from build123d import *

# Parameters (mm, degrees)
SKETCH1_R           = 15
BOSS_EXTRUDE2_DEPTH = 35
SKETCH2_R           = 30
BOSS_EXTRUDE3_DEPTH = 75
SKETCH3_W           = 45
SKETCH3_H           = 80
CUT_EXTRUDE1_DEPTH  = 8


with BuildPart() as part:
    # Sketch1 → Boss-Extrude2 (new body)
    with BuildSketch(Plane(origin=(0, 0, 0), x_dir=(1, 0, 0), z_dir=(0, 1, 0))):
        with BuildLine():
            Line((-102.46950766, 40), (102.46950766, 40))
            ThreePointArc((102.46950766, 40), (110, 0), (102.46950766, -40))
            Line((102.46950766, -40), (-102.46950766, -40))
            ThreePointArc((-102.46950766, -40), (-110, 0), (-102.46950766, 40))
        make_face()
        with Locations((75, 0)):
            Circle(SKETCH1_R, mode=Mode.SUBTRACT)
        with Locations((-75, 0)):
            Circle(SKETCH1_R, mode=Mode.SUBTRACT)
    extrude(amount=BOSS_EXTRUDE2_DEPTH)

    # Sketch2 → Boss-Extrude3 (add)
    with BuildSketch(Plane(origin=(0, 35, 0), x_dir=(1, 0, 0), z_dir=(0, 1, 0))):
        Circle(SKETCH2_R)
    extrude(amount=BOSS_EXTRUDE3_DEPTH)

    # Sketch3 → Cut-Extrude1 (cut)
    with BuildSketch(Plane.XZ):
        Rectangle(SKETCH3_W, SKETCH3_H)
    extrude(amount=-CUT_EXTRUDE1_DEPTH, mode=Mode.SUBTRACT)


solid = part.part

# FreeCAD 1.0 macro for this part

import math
import FreeCAD as App
import Part
import Sketcher
from FreeCAD import Vector

doc = App.newDocument("Part")
body = doc.addObject("PartDesign::Body", "Body")

sketch1 = body.newObject("Sketcher::SketchObject", "Sketch")
sketch1.AttachmentSupport = (doc.getObject("XZ_Plane"), [""])
sketch1.MapMode = "FlatFace"
sketch1.addGeometry([
    Part.LineSegment(Vector(102, -40, 0), Vector(-102, -40, 0)),
    Part.ArcOfCircle(Part.Circle(Vector(0, 0, 0), Vector(0, 0, 1), 110), math.radians(159), math.radians(201)),
    Part.LineSegment(Vector(-102, 40, 0), Vector(102, 40, 0)),
    Part.ArcOfCircle(Part.Circle(Vector(0, 0, 0), Vector(0, 0, 1), 110), math.radians(-21), math.radians(21)),
    Part.Circle(Vector(75, 0, 0), Vector(0, 0, 1), 15),
    Part.Circle(Vector(-75, 0, 0), Vector(0, 0, 1), 15),
], False)
sketch1.addConstraint([
    Sketcher.Constraint("Coincident", 0, 2, 1, 2),
    Sketcher.Constraint("Coincident", 1, 1, 2, 1),
    Sketcher.Constraint("Coincident", 2, 2, 3, 2),
    Sketcher.Constraint("Coincident", 3, 1, 0, 1),
    Sketcher.Constraint("Horizontal", 0),
    Sketcher.Constraint("Horizontal", 2),
    Sketcher.Constraint("Coincident", 1, 3, -1, 1),
    Sketcher.Constraint("Coincident", 3, 3, -1, 1),
    Sketcher.Constraint("Equal", 1, 3),
    Sketcher.Constraint("Equal", 4, 5),
    Sketcher.Constraint("Symmetric", 4, 3, 5, 3, -1, 1),
    Sketcher.Constraint("PointOnObject", 4, 3, -1),
    Sketcher.Constraint("Vertical", 0, 2, 1, 1),
    Sketcher.Constraint("Diameter", 4, 30.0),
    Sketcher.Constraint("Radius", 1, 110.0),
    Sketcher.Constraint("DistanceX", -1, 1, 4, 3, 75.0),
    Sketcher.Constraint("DistanceY", 0, 2, -1, 1, 40.0),
])
pad1 = body.newObject("PartDesign::Pad", "Pad")
pad1.Profile = sketch1
pad1.Length = 35
pad1.Reversed = True

sketch2 = body.newObject("Sketcher::SketchObject", "Sketch001")
sketch2.AttachmentSupport = (doc.getObject("XZ_Plane"), [""])
sketch2.MapMode = "FlatFace"
sketch2.AttachmentOffset = App.Placement(Vector(0, 0, -35), App.Rotation())
sketch2.addGeometry(Part.Circle(Vector(0, 0, 0), Vector(0, 0, 1), 30), False)
sketch2.addConstraint([
    Sketcher.Constraint("Coincident", 0, 3, -1, 1),
    Sketcher.Constraint("Diameter", 0, 60.0),
])
pad2 = body.newObject("PartDesign::Pad", "Pad001")
pad2.Profile = sketch2
pad2.Length = 75
pad2.Reversed = True

sketch3 = body.newObject("Sketcher::SketchObject", "Sketch002")
sketch3.AttachmentSupport = (doc.getObject("XZ_Plane"), [""])
sketch3.MapMode = "FlatFace"
sketch3.addGeometry([
    Part.LineSegment(Vector(-22, 40, 0), Vector(-22, -40, 0)),
    Part.LineSegment(Vector(-22, -40, 0), Vector(22, -40, 0)),
    Part.LineSegment(Vector(22, -40, 0), Vector(22, 40, 0)),
    Part.LineSegment(Vector(22, 40, 0), Vector(-22, 40, 0)),
], False)
sketch3.addConstraint([
    Sketcher.Constraint("Coincident", 0, 2, 1, 1),
    Sketcher.Constraint("Coincident", 1, 2, 2, 1),
    Sketcher.Constraint("Coincident", 2, 2, 3, 1),
    Sketcher.Constraint("Coincident", 3, 2, 0, 1),
    Sketcher.Constraint("Vertical", 0),
    Sketcher.Constraint("Horizontal", 1),
    Sketcher.Constraint("Vertical", 2),
    Sketcher.Constraint("Horizontal", 3),
    Sketcher.Constraint("Symmetric", 0, 2, 2, 2, -1, 1),
    Sketcher.Constraint("DistanceX", 1, 1, 1, 2, 45.0),
    Sketcher.Constraint("DistanceY", 0, 2, 0, 1, 80.0),
])
pocket1 = body.newObject("PartDesign::Pocket", "Pocket")
pocket1.Profile = sketch3
pocket1.Length = 8

doc.recompute()
